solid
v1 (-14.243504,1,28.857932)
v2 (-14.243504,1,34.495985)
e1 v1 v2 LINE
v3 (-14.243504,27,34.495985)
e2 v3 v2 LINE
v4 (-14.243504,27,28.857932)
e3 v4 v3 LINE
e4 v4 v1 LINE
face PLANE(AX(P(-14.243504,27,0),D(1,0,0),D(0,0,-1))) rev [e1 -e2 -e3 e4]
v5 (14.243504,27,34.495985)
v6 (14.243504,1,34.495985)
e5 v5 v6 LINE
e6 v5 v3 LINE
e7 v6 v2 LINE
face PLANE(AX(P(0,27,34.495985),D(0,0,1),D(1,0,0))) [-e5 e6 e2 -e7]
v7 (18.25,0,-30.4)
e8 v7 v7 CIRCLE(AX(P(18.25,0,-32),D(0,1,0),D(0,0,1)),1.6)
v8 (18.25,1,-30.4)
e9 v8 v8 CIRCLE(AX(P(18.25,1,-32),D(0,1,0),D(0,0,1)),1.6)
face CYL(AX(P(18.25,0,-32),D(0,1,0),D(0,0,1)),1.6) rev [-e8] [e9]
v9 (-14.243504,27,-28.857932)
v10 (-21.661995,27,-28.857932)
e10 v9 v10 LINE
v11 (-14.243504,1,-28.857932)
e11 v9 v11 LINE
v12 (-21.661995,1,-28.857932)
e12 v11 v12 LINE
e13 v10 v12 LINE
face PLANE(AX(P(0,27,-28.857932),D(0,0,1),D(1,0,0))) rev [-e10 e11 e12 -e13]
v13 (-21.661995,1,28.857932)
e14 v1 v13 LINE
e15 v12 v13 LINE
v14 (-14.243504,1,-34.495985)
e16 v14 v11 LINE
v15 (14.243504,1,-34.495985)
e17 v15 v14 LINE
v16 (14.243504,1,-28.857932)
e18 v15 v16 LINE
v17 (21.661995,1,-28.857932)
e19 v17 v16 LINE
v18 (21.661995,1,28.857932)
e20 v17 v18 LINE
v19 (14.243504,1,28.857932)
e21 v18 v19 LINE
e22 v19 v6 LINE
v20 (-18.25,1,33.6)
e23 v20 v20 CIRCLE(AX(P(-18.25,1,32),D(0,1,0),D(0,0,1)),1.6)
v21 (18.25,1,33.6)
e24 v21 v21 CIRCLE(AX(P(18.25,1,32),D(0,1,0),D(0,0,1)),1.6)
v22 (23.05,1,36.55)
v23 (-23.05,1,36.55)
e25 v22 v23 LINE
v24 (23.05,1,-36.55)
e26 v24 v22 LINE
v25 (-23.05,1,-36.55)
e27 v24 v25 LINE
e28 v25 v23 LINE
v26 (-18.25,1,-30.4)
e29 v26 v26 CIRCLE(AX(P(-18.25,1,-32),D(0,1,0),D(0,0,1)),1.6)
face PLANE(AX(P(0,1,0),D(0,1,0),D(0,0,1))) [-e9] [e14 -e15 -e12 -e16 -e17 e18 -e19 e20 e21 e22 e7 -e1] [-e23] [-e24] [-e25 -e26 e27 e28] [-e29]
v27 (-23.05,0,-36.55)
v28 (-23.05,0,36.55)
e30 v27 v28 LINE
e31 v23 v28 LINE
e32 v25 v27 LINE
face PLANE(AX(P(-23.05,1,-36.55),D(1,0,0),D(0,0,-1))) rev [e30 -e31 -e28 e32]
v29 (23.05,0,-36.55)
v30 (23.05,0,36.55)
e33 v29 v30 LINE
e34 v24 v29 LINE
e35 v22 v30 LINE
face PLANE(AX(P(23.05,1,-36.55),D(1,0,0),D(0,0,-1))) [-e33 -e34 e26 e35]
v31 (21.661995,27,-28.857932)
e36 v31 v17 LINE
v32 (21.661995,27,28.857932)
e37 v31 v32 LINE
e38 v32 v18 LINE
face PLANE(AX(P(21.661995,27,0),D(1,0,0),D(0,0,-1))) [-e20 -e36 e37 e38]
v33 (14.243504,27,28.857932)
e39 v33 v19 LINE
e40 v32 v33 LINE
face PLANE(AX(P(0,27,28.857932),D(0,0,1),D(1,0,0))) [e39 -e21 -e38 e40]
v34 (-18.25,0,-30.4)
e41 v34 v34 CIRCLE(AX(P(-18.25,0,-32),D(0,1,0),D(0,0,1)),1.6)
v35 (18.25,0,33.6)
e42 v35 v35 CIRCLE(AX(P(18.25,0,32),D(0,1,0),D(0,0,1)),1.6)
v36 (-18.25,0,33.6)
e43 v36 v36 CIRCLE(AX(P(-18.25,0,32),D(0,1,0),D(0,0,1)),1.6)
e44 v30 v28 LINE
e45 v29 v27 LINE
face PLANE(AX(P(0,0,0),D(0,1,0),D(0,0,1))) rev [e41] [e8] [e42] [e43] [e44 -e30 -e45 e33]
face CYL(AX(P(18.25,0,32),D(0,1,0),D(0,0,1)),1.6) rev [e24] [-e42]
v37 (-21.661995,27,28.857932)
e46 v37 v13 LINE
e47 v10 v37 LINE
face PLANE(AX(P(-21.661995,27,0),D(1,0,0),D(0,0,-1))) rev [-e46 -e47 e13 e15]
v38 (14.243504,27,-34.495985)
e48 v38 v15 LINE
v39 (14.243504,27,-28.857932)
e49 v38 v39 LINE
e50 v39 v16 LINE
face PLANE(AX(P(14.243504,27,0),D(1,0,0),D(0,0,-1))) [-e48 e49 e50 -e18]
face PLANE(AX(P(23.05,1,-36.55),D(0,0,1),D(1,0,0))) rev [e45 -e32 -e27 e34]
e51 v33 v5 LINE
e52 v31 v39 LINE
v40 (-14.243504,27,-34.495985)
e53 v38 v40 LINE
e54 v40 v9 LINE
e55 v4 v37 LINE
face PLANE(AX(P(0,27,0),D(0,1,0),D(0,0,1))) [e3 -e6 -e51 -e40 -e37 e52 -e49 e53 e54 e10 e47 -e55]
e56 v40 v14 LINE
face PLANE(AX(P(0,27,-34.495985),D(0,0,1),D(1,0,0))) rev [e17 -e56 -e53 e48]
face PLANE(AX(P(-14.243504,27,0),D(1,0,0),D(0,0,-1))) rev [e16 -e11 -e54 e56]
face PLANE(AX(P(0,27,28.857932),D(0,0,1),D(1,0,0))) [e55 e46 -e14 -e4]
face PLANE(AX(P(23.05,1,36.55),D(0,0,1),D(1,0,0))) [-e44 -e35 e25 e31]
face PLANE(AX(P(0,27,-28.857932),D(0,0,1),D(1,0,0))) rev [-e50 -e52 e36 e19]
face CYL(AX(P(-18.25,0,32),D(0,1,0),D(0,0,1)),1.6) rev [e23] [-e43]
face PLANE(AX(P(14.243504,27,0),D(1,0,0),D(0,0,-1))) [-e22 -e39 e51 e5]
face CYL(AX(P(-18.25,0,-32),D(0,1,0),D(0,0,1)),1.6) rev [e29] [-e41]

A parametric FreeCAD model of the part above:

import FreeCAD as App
import Part
import Sketcher

V = App.Vector

doc = App.newDocument("Part")
body = doc.addObject("PartDesign::Body", "Body")

sketch1 = doc.addObject("Sketcher::SketchObject", "Sketch")
body.addObject(sketch1)
sketch1.AttachmentSupport = (doc.XZ_Plane, [""])
sketch1.MapMode = "FlatFace"
sketch1.addGeometry([
    Part.LineSegment(V(-23.05, -36.55, 0), V(-23.05, 36.55, 0)),
    Part.LineSegment(V(-23.05, 36.55, 0), V(23.05, 36.55, 0)),
    Part.LineSegment(V(23.05, 36.55, 0), V(23.05, -36.55, 0)),
    Part.LineSegment(V(23.05, -36.55, 0), V(-23.05, -36.55, 0)),
], False)
sketch1.addConstraint([
    Sketcher.Constraint("Coincident", 0, 2, 1, 1),
    Sketcher.Constraint("Coincident", 1, 2, 2, 1),
    Sketcher.Constraint("Coincident", 2, 2, 3, 1),
    Sketcher.Constraint("Coincident", 3, 2, 0, 1),
    Sketcher.Constraint("Vertical", 0),
    Sketcher.Constraint("Horizontal", 1),
    Sketcher.Constraint("Vertical", 2),
    Sketcher.Constraint("Horizontal", 3),
    Sketcher.Constraint("Symmetric", 0, 2, 2, 2, -1, 1),
    Sketcher.Constraint("DistanceX", 1, 1, 1, 2, 46.1),
    Sketcher.Constraint("DistanceY", 0, 1, 0, 2, 73.1),
])
pad1 = doc.addObject("PartDesign::Pad", "Pad")
body.addObject(pad1)
pad1.Profile = sketch1
pad1.Length = 1
pad1.Reversed = True

sketch2 = doc.addObject("Sketcher::SketchObject", "Sketch001")
body.addObject(sketch2)
sketch2.AttachmentSupport = (doc.XZ_Plane, [""])
sketch2.MapMode = "FlatFace"
sketch2.AttachmentOffset = App.Placement(V(0, 0, -1), App.Rotation())
sketch2.addGeometry([
    Part.Circle(V(-18.25, -32, 0), V(0, 0, 1), 1.6),
    Part.Circle(V(18.25, -32, 0), V(0, 0, 1), 1.6),
    Part.Circle(V(18.25, 32, 0), V(0, 0, 1), 1.6),
    Part.Circle(V(-18.25, 32, 0), V(0, 0, 1), 1.6),
], False)
sketch2.addConstraint([
    Sketcher.Constraint("Equal", 0, 1),
    Sketcher.Constraint("Equal", 1, 2),
    Sketcher.Constraint("Equal", 2, 3),
    Sketcher.Constraint("Symmetric", 0, 3, 2, 3, -1, 1),
    Sketcher.Constraint("Symmetric", 1, 3, 3, 3, -1, 1),
    Sketcher.Constraint("Symmetric", 0, 3, 1, 3, -2),
    Sketcher.Constraint("Diameter", 0, 3.2),
    Sketcher.Constraint("DistanceY", 0, 3, -1, 1, 32.0),
    Sketcher.Constraint("DistanceX", 0, 3, 1, 3, 36.5),
])
pocket1 = doc.addObject("PartDesign::Pocket", "Pocket")
body.addObject(pocket1)
pocket1.Profile = sketch2
pocket1.Type = "ThroughAll"
pocket1.Reversed = True

sketch3 = doc.addObject("Sketcher::SketchObject", "Sketch002")
body.addObject(sketch3)
sketch3.AttachmentSupport = (doc.XZ_Plane, [""])
sketch3.MapMode = "FlatFace"
sketch3.AttachmentOffset = App.Placement(V(0, 0, -1), App.Rotation())
sketch3.addGeometry([
    Part.LineSegment(V(-21.661995, -28.857932, 0), V(-21.661995, 28.857932, 0)),
    Part.LineSegment(V(-21.661995, 28.857932, 0), V(-14.243504, 28.857932, 0)),
    Part.LineSegment(V(-14.243504, 28.857932, 0), V(-14.243504, 34.495985, 0)),
    Part.LineSegment(V(-14.243504, 34.495985, 0), V(14.243504, 34.495985, 0)),
    Part.LineSegment(V(14.243504, 34.495985, 0), V(14.243504, 28.857932, 0)),
    Part.LineSegment(V(14.243504, 28.857932, 0), V(21.661995, 28.857932, 0)),
    Part.LineSegment(V(21.661995, 28.857932, 0), V(21.661995, -28.857932, 0)),
    Part.LineSegment(V(21.661995, -28.857932, 0), V(14.243504, -28.857932, 0)),
    Part.LineSegment(V(14.243504, -28.857932, 0), V(14.243504, -34.495985, 0)),
    Part.LineSegment(V(14.243504, -34.495985, 0), V(-14.243504, -34.495985, 0)),
    Part.LineSegment(V(-14.243504, -34.495985, 0), V(-14.243504, -28.857932, 0)),
    Part.LineSegment(V(-14.243504, -28.857932, 0), V(-21.661995, -28.857932, 0)),
], False)
sketch3.addConstraint([
    Sketcher.Constraint("Coincident", 0, 2, 1, 1),
    Sketcher.Constraint("Coincident", 1, 2, 2, 1),
    Sketcher.Constraint("Coincident", 2, 2, 3, 1),
    Sketcher.Constraint("Coincident", 3, 2, 4, 1),
    Sketcher.Constraint("Coincident", 4, 2, 5, 1),
    Sketcher.Constraint("Coincident", 5, 2, 6, 1),
    Sketcher.Constraint("Coincident", 6, 2, 7, 1),
    Sketcher.Constraint("Coincident", 7, 2, 8, 1),
    Sketcher.Constraint("Coincident", 8, 2, 9, 1),
    Sketcher.Constraint("Coincident", 9, 2, 10, 1),
    Sketcher.Constraint("Coincident", 10, 2, 11, 1),
    Sketcher.Constraint("Coincident", 11, 2, 0, 1),
    Sketcher.Constraint("Vertical", 0),
    Sketcher.Constraint("Horizontal", 1),
    Sketcher.Constraint("Vertical", 2),
    Sketcher.Constraint("Horizontal", 3),
    Sketcher.Constraint("Vertical", 4),
    Sketcher.Constraint("Horizontal", 5),
    Sketcher.Constraint("Vertical", 6),
    Sketcher.Constraint("Horizontal", 7),
    Sketcher.Constraint("Vertical", 8),
    Sketcher.Constraint("Horizontal", 9),
    Sketcher.Constraint("Vertical", 10),
    Sketcher.Constraint("Horizontal", 11),
    Sketcher.Constraint("Symmetric", 0, 2, 6, 2, -1, 1),
    Sketcher.Constraint("Symmetric", 2, 2, 8, 2, -1, 1),
    Sketcher.Constraint("Symmetric", 4, 2, 10, 2, -1, 1),
    Sketcher.Constraint("Symmetric", 1, 2, 4, 2, -2),
    Sketcher.Constraint("DistanceX", 1, 1, 1, 2, 7.418491),
    Sketcher.Constraint("DistanceX", 0, 2, 3, 2, 35.905499),
    Sketcher.Constraint("DistanceY", 0, 1, 0, 2, 57.715864),
    Sketcher.Constraint("DistanceY", 2, 1, 2, 2, 5.638054),
])
pad2 = doc.addObject("PartDesign::Pad", "Pad001")
body.addObject(pad2)
pad2.Profile = sketch3
pad2.Length = 26
pad2.Reversed = True

doc.recompute()
